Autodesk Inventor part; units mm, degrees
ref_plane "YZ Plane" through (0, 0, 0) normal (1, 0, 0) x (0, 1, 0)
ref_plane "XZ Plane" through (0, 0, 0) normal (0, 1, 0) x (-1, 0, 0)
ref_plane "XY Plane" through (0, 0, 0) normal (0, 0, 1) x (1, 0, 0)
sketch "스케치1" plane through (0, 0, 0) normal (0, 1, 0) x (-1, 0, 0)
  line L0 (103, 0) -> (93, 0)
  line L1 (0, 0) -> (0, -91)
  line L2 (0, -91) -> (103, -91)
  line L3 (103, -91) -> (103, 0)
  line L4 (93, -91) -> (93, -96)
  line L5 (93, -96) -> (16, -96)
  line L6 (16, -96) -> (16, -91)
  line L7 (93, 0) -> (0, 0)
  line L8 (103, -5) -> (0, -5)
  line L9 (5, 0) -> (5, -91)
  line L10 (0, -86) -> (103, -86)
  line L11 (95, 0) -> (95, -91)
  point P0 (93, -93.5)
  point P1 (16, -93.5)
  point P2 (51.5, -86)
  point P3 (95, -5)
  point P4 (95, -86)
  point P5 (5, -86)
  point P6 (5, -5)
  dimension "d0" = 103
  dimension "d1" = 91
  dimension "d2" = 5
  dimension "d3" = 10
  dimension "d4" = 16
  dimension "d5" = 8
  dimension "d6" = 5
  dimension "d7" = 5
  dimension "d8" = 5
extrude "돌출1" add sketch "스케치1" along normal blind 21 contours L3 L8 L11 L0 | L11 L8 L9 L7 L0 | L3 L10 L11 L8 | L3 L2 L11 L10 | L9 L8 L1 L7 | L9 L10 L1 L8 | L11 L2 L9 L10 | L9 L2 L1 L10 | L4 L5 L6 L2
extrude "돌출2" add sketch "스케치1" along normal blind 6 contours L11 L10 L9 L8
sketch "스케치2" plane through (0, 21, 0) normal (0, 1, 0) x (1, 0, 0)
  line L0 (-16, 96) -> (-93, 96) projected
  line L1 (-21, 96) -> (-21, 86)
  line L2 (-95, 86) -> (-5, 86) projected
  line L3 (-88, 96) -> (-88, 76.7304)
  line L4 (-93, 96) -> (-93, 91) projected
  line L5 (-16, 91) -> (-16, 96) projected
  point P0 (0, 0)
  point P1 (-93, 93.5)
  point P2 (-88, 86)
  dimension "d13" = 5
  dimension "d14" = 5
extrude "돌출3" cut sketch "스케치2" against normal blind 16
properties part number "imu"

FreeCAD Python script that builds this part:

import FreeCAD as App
import Part
import Sketcher
from FreeCAD import Vector

doc = App.newDocument("Part")
params = doc.addObject("Spreadsheet::Sheet", "Params")
for row, (alias, value) in enumerate([
    ("sketch1_width", "103 mm"),
    ("sketch1_width2", "16 mm"),
    ("sketch1_width3", "10 mm"),
    ("sketch1_height", "91 mm"),
    ("sketch1_height2", "5 mm"),
    ("pad1_length", "21 mm"),
    ("sketch2_width", "90 mm"),
    ("sketch2_height", "81 mm"),
    ("pad2_length", "6 mm"),
    ("sketch3_width", "67 mm"),
    ("sketch3_height", "10 mm"),
    ("pocket1_length", "16 mm"),
], start=1):
    params.set(f"A{row}", alias)
    params.set(f"B{row}", "=" + value)
    params.setAlias(f"B{row}", alias)

body = doc.addObject("PartDesign::Body", "Body")

# Sketch on XZ plane
sketch1 = body.newObject("Sketcher::SketchObject", "Sketch")
sketch1.AttachmentSupport = (doc.getObject("XZ_Plane"), [""])
sketch1.MapMode = "FlatFace"
sketch1.addGeometry([
    Part.LineSegment(Vector(-103, 0, 0), Vector(0, 0, 0)),  # 0
    Part.LineSegment(Vector(0, 0, 0), Vector(0, -91, 0)),  # 1
    Part.LineSegment(Vector(0, -91, 0), Vector(-16, -91, 0)),  # 2
    Part.LineSegment(Vector(-16, -91, 0), Vector(-16, -96, 0)),  # 3
    Part.LineSegment(Vector(-16, -96, 0), Vector(-93, -96, 0)),  # 4
    Part.LineSegment(Vector(-93, -96, 0), Vector(-93, -91, 0)),  # 5
    Part.LineSegment(Vector(-93, -91, 0), Vector(-103, -91, 0)),  # 6
    Part.LineSegment(Vector(-103, -91, 0), Vector(-103, 0, 0)),  # 7
    Part.LineSegment(Vector(-95, -5, 0), Vector(-95, -86, 0)),  # 8
    Part.LineSegment(Vector(-95, -86, 0), Vector(-5, -86, 0)),  # 9
    Part.LineSegment(Vector(-5, -86, 0), Vector(-5, -5, 0)),  # 10
    Part.LineSegment(Vector(-5, -5, 0), Vector(-95, -5, 0)),  # 11
], False)
sketch1.addConstraint([
    Sketcher.Constraint("Coincident", 0, 2, 1, 1),
    Sketcher.Constraint("Coincident", 1, 2, 2, 1),
    Sketcher.Constraint("Coincident", 2, 2, 3, 1),
    Sketcher.Constraint("Coincident", 3, 2, 4, 1),
    Sketcher.Constraint("Coincident", 4, 2, 5, 1),
    Sketcher.Constraint("Coincident", 5, 2, 6, 1),
    Sketcher.Constraint("Coincident", 6, 2, 7, 1),
    Sketcher.Constraint("Coincident", 7, 2, 0, 1),
    Sketcher.Constraint("Coincident", 8, 2, 9, 1),
    Sketcher.Constraint("Coincident", 9, 2, 10, 1),
    Sketcher.Constraint("Coincident", 10, 2, 11, 1),
    Sketcher.Constraint("Coincident", 11, 2, 8, 1),
    Sketcher.Constraint("Horizontal", 0),
    Sketcher.Constraint("Vertical", 1),
    Sketcher.Constraint("Horizontal", 2),
    Sketcher.Constraint("Vertical", 3),
    Sketcher.Constraint("Horizontal", 4),
    Sketcher.Constraint("Vertical", 5),
    Sketcher.Constraint("Horizontal", 6),
    Sketcher.Constraint("Vertical", 7),
    Sketcher.Constraint("Vertical", 8),
    Sketcher.Constraint("Horizontal", 9),
    Sketcher.Constraint("Vertical", 10),
    Sketcher.Constraint("Horizontal", 11),
    Sketcher.Constraint("Coincident", 0, 2, -1, 1),
    Sketcher.Constraint("Horizontal", 2, 2, 5, 2),
    Sketcher.Constraint("DistanceX", 0, 1, 0, 2, 103.0),
    Sketcher.Constraint("DistanceX", 2, 2, 2, 1, 16.0),
    Sketcher.Constraint("DistanceX", 6, 2, 6, 1, 10.0),
    Sketcher.Constraint("DistanceY", 1, 2, 1, 1, 91.0),
    Sketcher.Constraint("DistanceY", 3, 2, 3, 1, 5.0),
    Sketcher.Constraint("DistanceX", 9, 2, -1, 1, 5.0),
    Sketcher.Constraint("DistanceY", 10, 2, -1, 1, 5.0),
    Sketcher.Constraint("DistanceY", 5, 2, 8, 2, 5.0),
    Sketcher.Constraint("DistanceX", 6, 2, 8, 2, 8.0),
])
sketch1.setExpression("Constraints[26]", "Params.sketch1_width")
sketch1.setExpression("Constraints[27]", "Params.sketch1_width2")
sketch1.setExpression("Constraints[28]", "Params.sketch1_width3")
sketch1.setExpression("Constraints[29]", "Params.sketch1_height")
sketch1.setExpression("Constraints[30]", "Params.sketch1_height2")
pad1 = body.newObject("PartDesign::Pad", "Pad")
pad1.Profile = sketch1
pad1.setExpression("Length", "Params.pad1_length")
pad1.Reversed = True

# Sketch on XZ plane
sketch2 = body.newObject("Sketcher::SketchObject", "Sketch001")
sketch2.AttachmentSupport = (doc.getObject("XZ_Plane"), [""])
sketch2.MapMode = "FlatFace"
sketch2.addGeometry([
    Part.LineSegment(Vector(-95, -86, 0), Vector(-95, -5, 0)),
    Part.LineSegment(Vector(-95, -5, 0), Vector(-5, -5, 0)),
    Part.LineSegment(Vector(-5, -5, 0), Vector(-5, -86, 0)),
    Part.LineSegment(Vector(-5, -86, 0), Vector(-95, -86, 0)),
], False)
sketch2.addConstraint([
    Sketcher.Constraint("Coincident", 0, 2, 1, 1),
    Sketcher.Constraint("Coincident", 1, 2, 2, 1),
    Sketcher.Constraint("Coincident", 2, 2, 3, 1),
    Sketcher.Constraint("Coincident", 3, 2, 0, 1),
    Sketcher.Constraint("Vertical", 0),
    Sketcher.Constraint("Horizontal", 1),
    Sketcher.Constraint("Vertical", 2),
    Sketcher.Constraint("Horizontal", 3),
    Sketcher.Constraint("DistanceY", 0, 2, -1, 1, 5.0),
    Sketcher.Constraint("DistanceX", 1, 2, -1, 1, 5.0),
    Sketcher.Constraint("DistanceX", 1, 1, 1, 2, 90.0),
    Sketcher.Constraint("DistanceY", 0, 1, 0, 2, 81.0),
])
sketch2.setExpression("Constraints[10]", "Params.sketch2_width")
sketch2.setExpression("Constraints[11]", "Params.sketch2_height")
pad2 = body.newObject("PartDesign::Pad", "Pad001")
pad2.Profile = sketch2
pad2.setExpression("Length", "Params.pad2_length")
pad2.Reversed = True

# Sketch on XZ plane
sketch3 = body.newObject("Sketcher::SketchObject", "Sketch002")
sketch3.AttachmentSupport = (doc.getObject("XZ_Plane"), [""])
sketch3.MapMode = "FlatFace"
sketch3.AttachmentOffset = App.Placement(Vector(0, 0, -21), App.Rotation())
sketch3.addGeometry([
    Part.LineSegment(Vector(-21, -86, 0), Vector(-21, -96, 0)),
    Part.LineSegment(Vector(-21, -96, 0), Vector(-88, -96, 0)),
    Part.LineSegment(Vector(-88, -96, 0), Vector(-88, -86, 0)),
    Part.LineSegment(Vector(-88, -86, 0), Vector(-21, -86, 0)),
], False)
sketch3.addConstraint([
    Sketcher.Constraint("Coincident", 0, 2, 1, 1),
    Sketcher.Constraint("Coincident", 1, 2, 2, 1),
    Sketcher.Constraint("Coincident", 2, 2, 3, 1),
    Sketcher.Constraint("Coincident", 3, 2, 0, 1),
    Sketcher.Constraint("Vertical", 0),
    Sketcher.Constraint("Horizontal", 1),
    Sketcher.Constraint("Vertical", 2),
    Sketcher.Constraint("Horizontal", 3),
    Sketcher.Constraint("DistanceX", 1, 2, 1, 1, 67.0),
    Sketcher.Constraint("DistanceY", 0, 2, 0, 1, 10.0),
    Sketcher.Constraint("DistanceX", 0, 2, -1, 1, 21.0),
    Sketcher.Constraint("DistanceY", 0, 2, -1, 1, 96.0),
])
sketch3.setExpression("Constraints[8]", "Params.sketch3_width")
sketch3.setExpression("Constraints[9]", "Params.sketch3_height")
pocket1 = body.newObject("PartDesign::Pocket", "Pocket")
pocket1.Profile = sketch3
pocket1.setExpression("Length", "Params.pocket1_length")
pocket1.Reversed = True

doc.recompute()
